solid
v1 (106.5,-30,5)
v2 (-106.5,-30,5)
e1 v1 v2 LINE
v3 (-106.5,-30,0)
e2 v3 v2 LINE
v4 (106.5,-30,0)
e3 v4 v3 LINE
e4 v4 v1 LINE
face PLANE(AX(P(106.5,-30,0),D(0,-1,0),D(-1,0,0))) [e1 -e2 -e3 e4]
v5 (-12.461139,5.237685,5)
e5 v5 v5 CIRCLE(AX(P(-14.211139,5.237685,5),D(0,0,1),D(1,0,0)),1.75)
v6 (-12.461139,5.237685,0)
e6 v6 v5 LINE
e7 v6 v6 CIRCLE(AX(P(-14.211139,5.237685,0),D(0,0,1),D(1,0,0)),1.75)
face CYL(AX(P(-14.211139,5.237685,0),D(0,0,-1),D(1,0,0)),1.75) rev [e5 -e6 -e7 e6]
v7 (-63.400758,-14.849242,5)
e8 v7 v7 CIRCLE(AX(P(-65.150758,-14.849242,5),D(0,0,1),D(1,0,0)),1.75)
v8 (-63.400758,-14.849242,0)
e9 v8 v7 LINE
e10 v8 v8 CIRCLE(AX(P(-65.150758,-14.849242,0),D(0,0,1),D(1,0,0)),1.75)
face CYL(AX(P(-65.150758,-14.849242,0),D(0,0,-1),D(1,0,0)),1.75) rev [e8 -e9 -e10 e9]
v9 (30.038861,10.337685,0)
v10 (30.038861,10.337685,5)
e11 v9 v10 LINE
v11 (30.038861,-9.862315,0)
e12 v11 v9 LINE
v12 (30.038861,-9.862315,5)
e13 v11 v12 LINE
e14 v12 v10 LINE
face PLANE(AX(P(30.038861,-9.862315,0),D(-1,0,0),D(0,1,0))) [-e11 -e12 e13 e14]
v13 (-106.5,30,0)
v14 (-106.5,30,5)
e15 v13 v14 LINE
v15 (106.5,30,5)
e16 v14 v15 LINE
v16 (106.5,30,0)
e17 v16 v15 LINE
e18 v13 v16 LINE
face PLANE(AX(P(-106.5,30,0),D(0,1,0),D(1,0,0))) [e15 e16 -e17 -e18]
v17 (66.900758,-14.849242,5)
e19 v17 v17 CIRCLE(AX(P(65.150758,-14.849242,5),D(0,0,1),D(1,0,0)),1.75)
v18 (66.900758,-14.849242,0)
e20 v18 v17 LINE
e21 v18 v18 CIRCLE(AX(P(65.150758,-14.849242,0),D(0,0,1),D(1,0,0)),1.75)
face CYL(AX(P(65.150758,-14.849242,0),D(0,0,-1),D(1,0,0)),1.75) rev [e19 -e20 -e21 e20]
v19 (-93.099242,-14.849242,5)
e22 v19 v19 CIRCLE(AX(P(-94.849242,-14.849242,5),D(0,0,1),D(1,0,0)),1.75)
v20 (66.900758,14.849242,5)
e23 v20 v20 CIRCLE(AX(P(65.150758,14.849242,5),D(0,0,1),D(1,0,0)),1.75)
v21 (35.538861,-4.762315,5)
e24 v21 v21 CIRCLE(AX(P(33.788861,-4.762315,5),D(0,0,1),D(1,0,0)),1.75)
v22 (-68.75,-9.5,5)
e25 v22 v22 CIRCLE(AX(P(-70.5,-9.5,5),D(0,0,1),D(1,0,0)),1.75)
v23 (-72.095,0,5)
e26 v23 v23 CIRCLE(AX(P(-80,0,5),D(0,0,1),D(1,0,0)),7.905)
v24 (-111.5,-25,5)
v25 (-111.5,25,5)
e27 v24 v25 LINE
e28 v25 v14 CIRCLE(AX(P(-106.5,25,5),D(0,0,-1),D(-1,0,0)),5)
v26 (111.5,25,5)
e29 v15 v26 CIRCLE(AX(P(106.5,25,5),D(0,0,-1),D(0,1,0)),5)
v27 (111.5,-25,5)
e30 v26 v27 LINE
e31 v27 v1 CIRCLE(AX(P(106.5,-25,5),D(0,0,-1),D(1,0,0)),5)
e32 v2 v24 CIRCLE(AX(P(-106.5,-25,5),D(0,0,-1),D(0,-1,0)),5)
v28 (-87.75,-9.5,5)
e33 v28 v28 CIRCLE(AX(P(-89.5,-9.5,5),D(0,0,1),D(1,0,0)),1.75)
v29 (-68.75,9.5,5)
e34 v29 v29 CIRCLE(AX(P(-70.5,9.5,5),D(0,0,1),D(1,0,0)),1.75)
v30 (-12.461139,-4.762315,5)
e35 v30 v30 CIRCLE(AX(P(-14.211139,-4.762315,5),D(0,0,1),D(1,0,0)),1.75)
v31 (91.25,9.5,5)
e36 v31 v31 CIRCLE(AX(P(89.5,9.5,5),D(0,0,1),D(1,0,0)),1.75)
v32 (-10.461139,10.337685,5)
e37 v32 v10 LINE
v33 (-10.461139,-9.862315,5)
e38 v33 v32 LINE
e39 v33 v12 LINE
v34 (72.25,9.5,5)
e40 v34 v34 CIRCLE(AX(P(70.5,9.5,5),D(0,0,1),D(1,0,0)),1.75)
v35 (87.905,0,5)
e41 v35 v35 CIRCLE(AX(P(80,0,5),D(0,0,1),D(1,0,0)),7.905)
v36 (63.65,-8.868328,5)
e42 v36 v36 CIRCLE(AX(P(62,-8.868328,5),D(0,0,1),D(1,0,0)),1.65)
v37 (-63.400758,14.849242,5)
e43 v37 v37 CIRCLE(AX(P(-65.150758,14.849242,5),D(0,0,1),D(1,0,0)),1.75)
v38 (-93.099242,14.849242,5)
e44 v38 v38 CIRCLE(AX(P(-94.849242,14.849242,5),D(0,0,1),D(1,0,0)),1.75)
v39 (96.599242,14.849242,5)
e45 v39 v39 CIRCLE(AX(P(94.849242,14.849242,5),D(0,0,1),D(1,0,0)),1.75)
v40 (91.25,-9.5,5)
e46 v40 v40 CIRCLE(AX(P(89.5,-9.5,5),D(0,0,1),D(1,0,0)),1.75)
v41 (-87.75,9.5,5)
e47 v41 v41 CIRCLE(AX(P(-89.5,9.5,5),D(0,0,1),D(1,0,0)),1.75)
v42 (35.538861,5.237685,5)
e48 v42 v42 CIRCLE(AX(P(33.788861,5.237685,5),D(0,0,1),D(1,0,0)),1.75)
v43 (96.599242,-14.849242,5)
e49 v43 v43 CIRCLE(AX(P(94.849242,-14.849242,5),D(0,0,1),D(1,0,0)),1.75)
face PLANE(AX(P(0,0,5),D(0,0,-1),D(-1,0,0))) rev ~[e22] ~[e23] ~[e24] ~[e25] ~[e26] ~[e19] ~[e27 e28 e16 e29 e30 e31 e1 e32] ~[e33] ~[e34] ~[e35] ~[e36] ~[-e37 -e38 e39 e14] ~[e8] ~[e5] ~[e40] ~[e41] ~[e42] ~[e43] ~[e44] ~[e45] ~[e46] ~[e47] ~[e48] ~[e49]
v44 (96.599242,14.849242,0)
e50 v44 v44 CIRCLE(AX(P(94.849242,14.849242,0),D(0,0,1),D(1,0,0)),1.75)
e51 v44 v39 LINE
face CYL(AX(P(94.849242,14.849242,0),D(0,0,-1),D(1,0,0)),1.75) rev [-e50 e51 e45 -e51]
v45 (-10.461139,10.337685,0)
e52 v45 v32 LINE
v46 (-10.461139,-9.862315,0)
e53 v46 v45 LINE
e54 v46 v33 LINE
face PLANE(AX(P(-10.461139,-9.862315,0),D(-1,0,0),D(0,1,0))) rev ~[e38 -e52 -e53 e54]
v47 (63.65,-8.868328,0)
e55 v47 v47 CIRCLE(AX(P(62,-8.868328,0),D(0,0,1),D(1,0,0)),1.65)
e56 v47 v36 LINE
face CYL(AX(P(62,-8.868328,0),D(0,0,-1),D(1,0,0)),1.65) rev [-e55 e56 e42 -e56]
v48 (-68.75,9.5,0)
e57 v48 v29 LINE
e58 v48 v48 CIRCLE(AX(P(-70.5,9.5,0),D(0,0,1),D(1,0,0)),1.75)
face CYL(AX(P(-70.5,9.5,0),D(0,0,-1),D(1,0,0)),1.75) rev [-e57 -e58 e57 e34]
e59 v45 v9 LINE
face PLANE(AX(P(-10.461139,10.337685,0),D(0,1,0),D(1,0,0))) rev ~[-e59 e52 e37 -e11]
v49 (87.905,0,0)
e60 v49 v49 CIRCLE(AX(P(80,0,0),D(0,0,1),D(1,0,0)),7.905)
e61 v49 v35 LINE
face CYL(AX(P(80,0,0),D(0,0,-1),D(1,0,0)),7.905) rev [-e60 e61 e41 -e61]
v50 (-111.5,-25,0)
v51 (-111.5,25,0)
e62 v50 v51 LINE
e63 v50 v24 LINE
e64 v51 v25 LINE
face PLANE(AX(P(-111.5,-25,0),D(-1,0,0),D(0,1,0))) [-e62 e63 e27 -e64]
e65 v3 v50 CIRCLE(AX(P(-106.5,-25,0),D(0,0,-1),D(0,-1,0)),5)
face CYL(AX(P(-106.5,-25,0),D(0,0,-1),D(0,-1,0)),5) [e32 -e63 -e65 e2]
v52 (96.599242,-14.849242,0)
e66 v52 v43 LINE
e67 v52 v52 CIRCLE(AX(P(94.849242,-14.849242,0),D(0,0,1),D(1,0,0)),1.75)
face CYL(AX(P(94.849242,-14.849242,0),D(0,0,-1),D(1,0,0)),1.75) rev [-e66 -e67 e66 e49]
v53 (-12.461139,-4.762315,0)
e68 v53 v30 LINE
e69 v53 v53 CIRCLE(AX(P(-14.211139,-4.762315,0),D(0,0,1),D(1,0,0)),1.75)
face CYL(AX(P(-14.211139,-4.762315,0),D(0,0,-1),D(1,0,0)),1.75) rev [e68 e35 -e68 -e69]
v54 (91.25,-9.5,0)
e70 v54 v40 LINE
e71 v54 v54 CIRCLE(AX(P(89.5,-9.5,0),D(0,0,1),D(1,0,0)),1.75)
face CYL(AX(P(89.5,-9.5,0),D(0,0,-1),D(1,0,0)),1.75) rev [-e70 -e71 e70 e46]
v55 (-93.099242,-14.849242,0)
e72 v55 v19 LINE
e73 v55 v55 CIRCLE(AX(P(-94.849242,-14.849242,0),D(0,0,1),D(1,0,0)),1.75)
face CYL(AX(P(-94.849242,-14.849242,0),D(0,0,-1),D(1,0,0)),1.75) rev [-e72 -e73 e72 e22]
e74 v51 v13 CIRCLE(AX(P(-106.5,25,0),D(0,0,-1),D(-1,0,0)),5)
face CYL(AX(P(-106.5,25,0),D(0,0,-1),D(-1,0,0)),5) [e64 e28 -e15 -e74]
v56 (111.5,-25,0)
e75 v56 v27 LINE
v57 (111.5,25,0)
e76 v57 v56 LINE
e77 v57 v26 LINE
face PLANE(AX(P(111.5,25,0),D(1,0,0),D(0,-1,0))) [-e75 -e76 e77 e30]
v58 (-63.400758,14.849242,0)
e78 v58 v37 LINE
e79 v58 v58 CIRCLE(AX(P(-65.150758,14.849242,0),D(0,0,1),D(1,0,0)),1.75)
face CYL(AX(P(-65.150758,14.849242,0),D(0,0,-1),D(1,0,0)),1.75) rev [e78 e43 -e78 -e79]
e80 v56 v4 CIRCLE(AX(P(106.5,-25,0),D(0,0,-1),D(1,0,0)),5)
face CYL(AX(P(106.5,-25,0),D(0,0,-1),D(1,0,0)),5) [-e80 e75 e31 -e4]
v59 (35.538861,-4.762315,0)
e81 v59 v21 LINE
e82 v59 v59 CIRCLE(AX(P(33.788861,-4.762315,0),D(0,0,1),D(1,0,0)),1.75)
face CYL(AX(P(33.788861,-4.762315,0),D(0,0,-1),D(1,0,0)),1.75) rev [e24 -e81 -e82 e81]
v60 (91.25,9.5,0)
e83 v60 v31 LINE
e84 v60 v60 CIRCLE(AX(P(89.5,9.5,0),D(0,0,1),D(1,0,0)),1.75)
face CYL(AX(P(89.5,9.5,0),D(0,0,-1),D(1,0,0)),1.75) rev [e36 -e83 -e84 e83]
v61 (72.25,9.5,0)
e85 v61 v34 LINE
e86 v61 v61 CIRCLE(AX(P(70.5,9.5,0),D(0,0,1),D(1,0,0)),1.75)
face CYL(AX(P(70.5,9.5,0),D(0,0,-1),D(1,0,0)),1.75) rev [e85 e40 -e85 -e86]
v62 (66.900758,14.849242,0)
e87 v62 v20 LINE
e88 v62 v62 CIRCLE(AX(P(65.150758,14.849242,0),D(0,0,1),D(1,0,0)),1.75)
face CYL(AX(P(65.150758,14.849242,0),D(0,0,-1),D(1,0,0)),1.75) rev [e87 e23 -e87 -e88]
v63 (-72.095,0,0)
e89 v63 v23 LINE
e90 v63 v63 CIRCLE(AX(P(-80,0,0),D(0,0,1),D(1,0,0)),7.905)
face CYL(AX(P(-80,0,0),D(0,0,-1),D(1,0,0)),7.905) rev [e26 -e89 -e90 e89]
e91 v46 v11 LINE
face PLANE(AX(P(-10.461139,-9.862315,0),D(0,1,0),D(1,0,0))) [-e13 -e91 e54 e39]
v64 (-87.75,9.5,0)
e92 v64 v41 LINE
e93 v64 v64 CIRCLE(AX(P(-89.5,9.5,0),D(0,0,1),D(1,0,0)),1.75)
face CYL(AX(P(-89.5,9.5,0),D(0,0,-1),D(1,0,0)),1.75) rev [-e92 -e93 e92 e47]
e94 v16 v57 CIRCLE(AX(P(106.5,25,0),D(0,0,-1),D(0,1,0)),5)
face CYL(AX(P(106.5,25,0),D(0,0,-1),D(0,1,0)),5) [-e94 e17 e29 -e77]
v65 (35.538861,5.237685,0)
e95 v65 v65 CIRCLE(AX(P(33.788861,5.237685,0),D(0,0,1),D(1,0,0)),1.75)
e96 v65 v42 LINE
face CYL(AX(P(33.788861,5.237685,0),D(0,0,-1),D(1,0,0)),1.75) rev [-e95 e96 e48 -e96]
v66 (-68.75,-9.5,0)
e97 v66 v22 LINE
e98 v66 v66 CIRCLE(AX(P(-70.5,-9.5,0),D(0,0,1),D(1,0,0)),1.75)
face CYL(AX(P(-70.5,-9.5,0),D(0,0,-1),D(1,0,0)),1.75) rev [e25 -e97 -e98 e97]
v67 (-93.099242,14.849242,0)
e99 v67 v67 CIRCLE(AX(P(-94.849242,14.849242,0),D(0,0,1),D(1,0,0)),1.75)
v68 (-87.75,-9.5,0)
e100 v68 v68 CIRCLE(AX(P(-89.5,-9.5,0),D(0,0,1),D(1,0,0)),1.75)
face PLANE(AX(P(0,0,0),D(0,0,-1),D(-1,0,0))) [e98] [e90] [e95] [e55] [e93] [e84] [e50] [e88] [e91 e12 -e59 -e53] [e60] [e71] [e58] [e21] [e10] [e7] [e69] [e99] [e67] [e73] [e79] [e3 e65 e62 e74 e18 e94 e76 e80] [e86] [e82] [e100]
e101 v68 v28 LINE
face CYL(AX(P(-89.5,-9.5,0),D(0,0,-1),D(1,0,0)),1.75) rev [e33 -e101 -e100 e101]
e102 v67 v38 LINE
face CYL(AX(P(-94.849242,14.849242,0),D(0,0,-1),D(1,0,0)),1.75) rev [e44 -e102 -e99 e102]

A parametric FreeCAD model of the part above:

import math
import FreeCAD as App
import Part
import Sketcher

V = App.Vector

doc = App.newDocument("Part")
body = doc.addObject("PartDesign::Body", "Body")

# Sketch on XY plane
sketch1 = body.newObject("Sketcher::SketchObject", "Sketch")
sketch1.AttachmentSupport = (doc.getObject("XY_Plane"), [""])
sketch1.MapMode = "FlatFace"
sketch1.addGeometry([
    Part.LineSegment(V(-106.5, -30, 0), V(106.5, -30, 0)),  # 0
    Part.ArcOfCircle(Part.Circle(V(106.5, -25, 0), V(0, 0, 1), 5), math.radians(-90), math.radians(0)),  # 1
    Part.LineSegment(V(111.5, -25, 0), V(111.5, 25, 0)),  # 2
    Part.ArcOfCircle(Part.Circle(V(106.5, 25, 0), V(0, 0, 1), 5), math.radians(0), math.radians(90)),  # 3
    Part.LineSegment(V(106.5, 30, 0), V(-106.5, 30, 0)),  # 4
    Part.ArcOfCircle(Part.Circle(V(-106.5, 25, 0), V(0, 0, 1), 5), math.radians(90), math.radians(180)),  # 5
    Part.LineSegment(V(-111.5, 25, 0), V(-111.5, -25, 0)),  # 6
    Part.ArcOfCircle(Part.Circle(V(-106.5, -25, 0), V(0, 0, 1), 5), math.radians(180), math.radians(270)),  # 7
    Part.Circle(V(94.849242, -14.849242, 0), V(0, 0, 1), 1.75),  # 8
    Part.Circle(V(65.150758, -14.849242, 0), V(0, 0, 1), 1.75),  # 9
    Part.Circle(V(89.5, -9.5, 0), V(0, 0, 1), 1.75),  # 10
    Part.Circle(V(62, -8.868328, 0), V(0, 0, 1), 1.65),  # 11
    Part.Circle(V(33.788861, -4.762315, 0), V(0, 0, 1), 1.75),  # 12
    Part.Circle(V(-65.150758, -14.849242, 0), V(0, 0, 1), 1.75),  # 13
    Part.Circle(V(-94.849242, -14.849242, 0), V(0, 0, 1), 1.75),  # 14
    Part.Circle(V(-70.5, -9.5, 0), V(0, 0, 1), 1.75),  # 15
    Part.Circle(V(-89.5, -9.5, 0), V(0, 0, 1), 1.75),  # 16
    Part.Circle(V(-14.211139, -4.762315, 0), V(0, 0, 1), 1.75),  # 17
    Part.Circle(V(80, 0, 0), V(0, 0, 1), 7.905),  # 18
    Part.LineSegment(V(-10.461139, -9.862315, 0), V(-10.461139, 10.337685, 0)),  # 19
    Part.LineSegment(V(-10.461139, 10.337685, 0), V(30.038861, 10.337685, 0)),  # 20
    Part.LineSegment(V(30.038861, 10.337685, 0), V(30.038861, -9.862315, 0)),  # 21
    Part.LineSegment(V(30.038861, -9.862315, 0), V(-10.461139, -9.862315, 0)),  # 22
    Part.Circle(V(33.788861, 5.237685, 0), V(0, 0, 1), 1.75),  # 23
    Part.Circle(V(89.5, 9.5, 0), V(0, 0, 1), 1.75),  # 24
    Part.Circle(V(70.5, 9.5, 0), V(0, 0, 1), 1.75),  # 25
    Part.Circle(V(94.849242, 14.849242, 0), V(0, 0, 1), 1.75),  # 26
    Part.Circle(V(65.150758, 14.849242, 0), V(0, 0, 1), 1.75),  # 27
    Part.Circle(V(-14.211139, 5.237685, 0), V(0, 0, 1), 1.75),  # 28
    Part.Circle(V(-80, 0, 0), V(0, 0, 1), 7.905),  # 29
    Part.Circle(V(-70.5, 9.5, 0), V(0, 0, 1), 1.75),  # 30
    Part.Circle(V(-89.5, 9.5, 0), V(0, 0, 1), 1.75),  # 31
    Part.Circle(V(-65.150758, 14.849242, 0), V(0, 0, 1), 1.75),  # 32
    Part.Circle(V(-94.849242, 14.849242, 0), V(0, 0, 1), 1.75),  # 33
], False)
sketch1.addConstraint([
    Sketcher.Constraint("Tangent", 0, 2, 1, 1),
    Sketcher.Constraint("Tangent", 1, 2, 2, 1),
    Sketcher.Constraint("Tangent", 2, 2, 3, 1),
    Sketcher.Constraint("Tangent", 3, 2, 4, 1),
    Sketcher.Constraint("Tangent", 4, 2, 5, 1),
    Sketcher.Constraint("Tangent", 5, 2, 6, 1),
    Sketcher.Constraint("Tangent", 6, 2, 7, 1),
    Sketcher.Constraint("Tangent", 7, 2, 0, 1),
    Sketcher.Constraint("Coincident", 19, 2, 20, 1),
    Sketcher.Constraint("Coincident", 20, 2, 21, 1),
    Sketcher.Constraint("Coincident", 21, 2, 22, 1),
    Sketcher.Constraint("Coincident", 22, 2, 19, 1),
    Sketcher.Constraint("Horizontal", 0),
    Sketcher.Constraint("Vertical", 2),
    Sketcher.Constraint("Horizontal", 4),
    Sketcher.Constraint("Vertical", 6),
    Sketcher.Constraint("Vertical", 19),
    Sketcher.Constraint("Horizontal", 20),
    Sketcher.Constraint("Vertical", 21),
    Sketcher.Constraint("Horizontal", 22),
    Sketcher.Constraint("Equal", 1, 3),
    Sketcher.Constraint("Equal", 3, 5),
    Sketcher.Constraint("Equal", 5, 7),
    Sketcher.Constraint("Equal", 8, 9),
    Sketcher.Constraint("Equal", 9, 10),
    Sketcher.Constraint("Equal", 10, 12),
    Sketcher.Constraint("Equal", 12, 13),
    Sketcher.Constraint("Equal", 13, 14),
    Sketcher.Constraint("Equal", 14, 15),
    Sketcher.Constraint("Equal", 15, 16),
    Sketcher.Constraint("Equal", 16, 17),
    Sketcher.Constraint("Equal", 17, 23),
    Sketcher.Constraint("Equal", 23, 24),
    Sketcher.Constraint("Equal", 24, 25),
    Sketcher.Constraint("Equal", 25, 26),
    Sketcher.Constraint("Equal", 26, 27),
    Sketcher.Constraint("Equal", 27, 28),
    Sketcher.Constraint("Equal", 18, 29),
    Sketcher.Constraint("Equal", 28, 30),
    Sketcher.Constraint("Equal", 30, 31),
    Sketcher.Constraint("Equal", 31, 32),
    Sketcher.Constraint("Equal", 32, 33),
    Sketcher.Constraint("Symmetric", 1, 3, 5, 3, -1, 1),
    Sketcher.Constraint("Symmetric", 16, 3, 24, 3, -1, 1),
    Sketcher.Constraint("Symmetric", 15, 3, 25, 3, -1, 1),
    Sketcher.Constraint("Symmetric", 14, 3, 26, 3, -1, 1),
    Sketcher.Constraint("Symmetric", 13, 3, 27, 3, -1, 1),
    Sketcher.Constraint("Symmetric", 18, 3, 29, 3, -1, 1),
    Sketcher.Constraint("Symmetric", 10, 3, 31, 3, -1, 1),
    Sketcher.Constraint("Symmetric", 9, 3, 32, 3, -1, 1),
    Sketcher.Constraint("Symmetric", 8, 3, 33, 3, -1, 1),
    Sketcher.Constraint("Symmetric", 9, 3, 13, 3, -2),
    Sketcher.Constraint("Symmetric", 8, 3, 14, 3, -2),
    Sketcher.Constraint("Symmetric", 10, 3, 16, 3, -2),
    Sketcher.Constraint("Symmetric", 25, 3, 30, 3, -2),
    Sketcher.Constraint("PointOnObject", 18, 3, -1),
    Sketcher.Constraint("Horizontal", 8, 3, 9, 3),
    Sketcher.Constraint("Horizontal", 10, 3, 15, 3),
    Sketcher.Constraint("Horizontal", 12, 3, 17, 3),
    Sketcher.Constraint("Horizontal", 23, 3, 28, 3),
    Sketcher.Constraint("Vertical", 12, 3, 23, 3),
    Sketcher.Constraint("Vertical", 17, 3, 28, 3),
    Sketcher.Constraint("Radius", 1, 5.0),
    Sketcher.Constraint("Diameter", 8, 3.5),
    Sketcher.Constraint("Diameter", 11, 3.3),
    Sketcher.Constraint("Diameter", 18, 15.81),
    Sketcher.Constraint("DistanceX", 0, 1, 0, 2, 213.0),
    Sketcher.Constraint("DistanceY", 2, 1, 2, 2, 50.0),
    Sketcher.Constraint("DistanceX", 20, 1, 20, 2, 40.5),
    Sketcher.Constraint("DistanceY", 19, 1, 19, 2, 20.2),
    Sketcher.Constraint("DistanceX", -1, 1, 11, 3, 62.0),
    Sketcher.Constraint("DistanceX", -1, 1, 18, 3, 80.0),
    Sketcher.Constraint("DistanceX", 10, 3, 1, 3, 17.0),
    Sketcher.Constraint("DistanceX", 7, 3, 15, 3, 36.0),
    Sketcher.Constraint("DistanceX", 17, 3, 12, 3, 48.0),
    Sketcher.Constraint("DistanceY", 12, 3, 23, 3, 10.0),
    Sketcher.Constraint("DistanceY", 10, 3, 24, 3, 19.0),
    Sketcher.Constraint("DistanceY", 28, 3, 19, 2, 5.1),
    Sketcher.Constraint("DistanceX", 28, 3, 19, 2, 3.75),
    Sketcher.Constraint("DistanceX", -1, 1, 12, 3, 33.788861),
    Sketcher.Constraint("DistanceX", 12, 3, 8, 3, 61.060381),
    Sketcher.Constraint("DistanceX", 13, 3, 12, 3, 98.939619),
    Sketcher.Constraint("DistanceY", 11, 3, 27, 3, 23.71757),
    Sketcher.Constraint("DistanceY", 8, 3, -1, 1, 14.849242),
    Sketcher.Constraint("DistanceY", 12, 3, -1, 1, 4.762315),
])
pad1 = body.newObject("PartDesign::Pad", "Pad")
pad1.Profile = sketch1
pad1.Length = 5

doc.recompute()
